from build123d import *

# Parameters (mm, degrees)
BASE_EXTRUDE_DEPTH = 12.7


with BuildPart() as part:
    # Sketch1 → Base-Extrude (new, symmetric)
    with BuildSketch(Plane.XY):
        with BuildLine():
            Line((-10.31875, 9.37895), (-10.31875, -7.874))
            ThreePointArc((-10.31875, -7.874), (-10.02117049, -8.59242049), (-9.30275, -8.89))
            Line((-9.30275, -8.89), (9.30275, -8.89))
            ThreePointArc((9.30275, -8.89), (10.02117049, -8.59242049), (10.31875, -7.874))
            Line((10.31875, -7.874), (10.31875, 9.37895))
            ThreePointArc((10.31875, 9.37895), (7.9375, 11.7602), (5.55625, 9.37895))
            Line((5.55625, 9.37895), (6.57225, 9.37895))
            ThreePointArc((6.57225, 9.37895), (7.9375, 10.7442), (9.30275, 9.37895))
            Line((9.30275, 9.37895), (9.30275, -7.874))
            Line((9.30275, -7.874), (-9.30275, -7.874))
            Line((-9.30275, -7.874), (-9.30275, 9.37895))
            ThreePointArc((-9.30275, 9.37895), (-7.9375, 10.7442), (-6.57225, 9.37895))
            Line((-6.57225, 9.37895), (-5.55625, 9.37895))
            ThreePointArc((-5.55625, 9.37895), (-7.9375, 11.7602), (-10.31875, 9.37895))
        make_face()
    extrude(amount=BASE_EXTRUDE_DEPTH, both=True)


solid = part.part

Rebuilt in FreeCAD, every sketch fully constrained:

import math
import FreeCAD as App
import Part
import Sketcher
Q = App.Units.Quantity

doc = App.newDocument("Part")
body = doc.addObject("PartDesign::Body", "Body")

sketch1 = body.newObject("Sketcher::SketchObject", "Sketch")
sketch1.AttachmentSupport = (doc.getObject("XY_Plane"), [""])
sketch1.MapMode = "FlatFace"
sketch1.addGeometry(Part.LineSegment(App.Vector(-10.3, 9.4, 0), App.Vector(-10.3, -7.9, 0)), False)
sketch1.addGeometry(Part.ArcOfCircle(Part.Circle(App.Vector(-9.3, -7.9, 0), App.Vector(0, 0, 1), 1), math.radians(180), math.radians(270)), False)
sketch1.addGeometry(Part.LineSegment(App.Vector(-9.3, -8.9, 0), App.Vector(9.3, -8.9, 0)), False)
sketch1.addGeometry(Part.ArcOfCircle(Part.Circle(App.Vector(9.3, -7.9, 0), App.Vector(0, 0, 1), 1), math.radians(-90), math.radians(0)), False)
sketch1.addGeometry(Part.LineSegment(App.Vector(10.3, -7.9, 0), App.Vector(10.3, 9.4, 0)), False)
sketch1.addGeometry(Part.ArcOfCircle(Part.Circle(App.Vector(7.9, 9.4, 0), App.Vector(0, 0, 1), 2.4), math.radians(0), math.radians(180)), False)
sketch1.addGeometry(Part.LineSegment(App.Vector(5.6, 9.4, 0), App.Vector(6.6, 9.4, 0)), False)
sketch1.addGeometry(Part.ArcOfCircle(Part.Circle(App.Vector(7.9, 9.4, 0), App.Vector(0, 0, 1), 1.4), math.radians(0), math.radians(180)), False)
sketch1.addGeometry(Part.LineSegment(App.Vector(9.3, 9.4, 0), App.Vector(9.3, -7.9, 0)), False)
sketch1.addGeometry(Part.LineSegment(App.Vector(9.3, -7.9, 0), App.Vector(-9.3, -7.9, 0)), False)
sketch1.addGeometry(Part.LineSegment(App.Vector(-9.3, -7.9, 0), App.Vector(-9.3, 9.4, 0)), False)
sketch1.addGeometry(Part.ArcOfCircle(Part.Circle(App.Vector(-7.9, 9.4, 0), App.Vector(0, 0, 1), 1.4), math.radians(0), math.radians(180)), False)
sketch1.addGeometry(Part.LineSegment(App.Vector(-6.6, 9.4, 0), App.Vector(-5.6, 9.4, 0)), False)
sketch1.addGeometry(Part.ArcOfCircle(Part.Circle(App.Vector(-7.9, 9.4, 0), App.Vector(0, 0, 1), 2.4), math.radians(0), math.radians(180)), False)
sketch1.addConstraint(Sketcher.Constraint("Tangent", 0, 2, 1, 1))
sketch1.addConstraint(Sketcher.Constraint("Tangent", 1, 2, 2, 1))
sketch1.addConstraint(Sketcher.Constraint("Tangent", 2, 2, 3, 1))
sketch1.addConstraint(Sketcher.Constraint("Tangent", 3, 2, 4, 1))
sketch1.addConstraint(Sketcher.Constraint("Tangent", 4, 2, 5, 1))
sketch1.addConstraint(Sketcher.Constraint("Coincident", 5, 2, 6, 1))
sketch1.addConstraint(Sketcher.Constraint("Coincident", 6, 2, 7, 2))
sketch1.addConstraint(Sketcher.Constraint("Tangent", 7, 1, 8, 1))
sketch1.addConstraint(Sketcher.Constraint("Coincident", 8, 2, 9, 1))
sketch1.addConstraint(Sketcher.Constraint("Coincident", 9, 2, 10, 1))
sketch1.addConstraint(Sketcher.Constraint("Tangent", 10, 2, 11, 2))
sketch1.addConstraint(Sketcher.Constraint("Coincident", 11, 1, 12, 1))
sketch1.addConstraint(Sketcher.Constraint("Coincident", 12, 2, 13, 1))
sketch1.addConstraint(Sketcher.Constraint("Tangent", 13, 2, 0, 1))
sketch1.addConstraint(Sketcher.Constraint("Vertical", 0))
sketch1.addConstraint(Sketcher.Constraint("Horizontal", 2))
sketch1.addConstraint(Sketcher.Constraint("Vertical", 4))
sketch1.addConstraint(Sketcher.Constraint("Horizontal", 6))
sketch1.addConstraint(Sketcher.Constraint("Vertical", 8))
sketch1.addConstraint(Sketcher.Constraint("Horizontal", 9))
sketch1.addConstraint(Sketcher.Constraint("Vertical", 10))
sketch1.addConstraint(Sketcher.Constraint("Horizontal", 12))
sketch1.addConstraint(Sketcher.Constraint("Coincident", 7, 3, 5, 3))
sketch1.addConstraint(Sketcher.Constraint("Coincident", 13, 3, 11, 3))
sketch1.addConstraint(Sketcher.Constraint("Coincident", 8, 2, 3, 3))
sketch1.addConstraint(Sketcher.Constraint("Coincident", 9, 2, 1, 3))
sketch1.addConstraint(Sketcher.Constraint("Equal", 7, 11))
sketch1.addConstraint(Sketcher.Constraint("Symmetric", 5, 3, 11, 3, -2))
sketch1.addConstraint(Sketcher.Constraint("Horizontal", 4, 2, 5, 2))
sketch1.addConstraint(Sketcher.Constraint("Horizontal", 10, 2, 11, 1))
sketch1.addConstraint(Sketcher.Constraint("Radius", 1, Q("0.04 in")))
sketch1.addConstraint(Sketcher.Constraint("Radius", 5, Q("0.09375 in")))
sketch1.addConstraint(Sketcher.Constraint("DistanceY", 1, 3, -1, 1, Q("0.31 in")))
sketch1.addConstraint(Sketcher.Constraint("DistanceX", 2, 1, 2, 2, Q("0.7325 in")))
sketch1.addConstraint(Sketcher.Constraint("DistanceY", 0, 2, 0, 1, Q("17.25295 mm")))
pad1 = body.newObject("PartDesign::Pad", "Pad")
pad1.Profile = sketch1
pad1.Length = Q("1 in")
pad1.Midplane = True

doc.recompute()
